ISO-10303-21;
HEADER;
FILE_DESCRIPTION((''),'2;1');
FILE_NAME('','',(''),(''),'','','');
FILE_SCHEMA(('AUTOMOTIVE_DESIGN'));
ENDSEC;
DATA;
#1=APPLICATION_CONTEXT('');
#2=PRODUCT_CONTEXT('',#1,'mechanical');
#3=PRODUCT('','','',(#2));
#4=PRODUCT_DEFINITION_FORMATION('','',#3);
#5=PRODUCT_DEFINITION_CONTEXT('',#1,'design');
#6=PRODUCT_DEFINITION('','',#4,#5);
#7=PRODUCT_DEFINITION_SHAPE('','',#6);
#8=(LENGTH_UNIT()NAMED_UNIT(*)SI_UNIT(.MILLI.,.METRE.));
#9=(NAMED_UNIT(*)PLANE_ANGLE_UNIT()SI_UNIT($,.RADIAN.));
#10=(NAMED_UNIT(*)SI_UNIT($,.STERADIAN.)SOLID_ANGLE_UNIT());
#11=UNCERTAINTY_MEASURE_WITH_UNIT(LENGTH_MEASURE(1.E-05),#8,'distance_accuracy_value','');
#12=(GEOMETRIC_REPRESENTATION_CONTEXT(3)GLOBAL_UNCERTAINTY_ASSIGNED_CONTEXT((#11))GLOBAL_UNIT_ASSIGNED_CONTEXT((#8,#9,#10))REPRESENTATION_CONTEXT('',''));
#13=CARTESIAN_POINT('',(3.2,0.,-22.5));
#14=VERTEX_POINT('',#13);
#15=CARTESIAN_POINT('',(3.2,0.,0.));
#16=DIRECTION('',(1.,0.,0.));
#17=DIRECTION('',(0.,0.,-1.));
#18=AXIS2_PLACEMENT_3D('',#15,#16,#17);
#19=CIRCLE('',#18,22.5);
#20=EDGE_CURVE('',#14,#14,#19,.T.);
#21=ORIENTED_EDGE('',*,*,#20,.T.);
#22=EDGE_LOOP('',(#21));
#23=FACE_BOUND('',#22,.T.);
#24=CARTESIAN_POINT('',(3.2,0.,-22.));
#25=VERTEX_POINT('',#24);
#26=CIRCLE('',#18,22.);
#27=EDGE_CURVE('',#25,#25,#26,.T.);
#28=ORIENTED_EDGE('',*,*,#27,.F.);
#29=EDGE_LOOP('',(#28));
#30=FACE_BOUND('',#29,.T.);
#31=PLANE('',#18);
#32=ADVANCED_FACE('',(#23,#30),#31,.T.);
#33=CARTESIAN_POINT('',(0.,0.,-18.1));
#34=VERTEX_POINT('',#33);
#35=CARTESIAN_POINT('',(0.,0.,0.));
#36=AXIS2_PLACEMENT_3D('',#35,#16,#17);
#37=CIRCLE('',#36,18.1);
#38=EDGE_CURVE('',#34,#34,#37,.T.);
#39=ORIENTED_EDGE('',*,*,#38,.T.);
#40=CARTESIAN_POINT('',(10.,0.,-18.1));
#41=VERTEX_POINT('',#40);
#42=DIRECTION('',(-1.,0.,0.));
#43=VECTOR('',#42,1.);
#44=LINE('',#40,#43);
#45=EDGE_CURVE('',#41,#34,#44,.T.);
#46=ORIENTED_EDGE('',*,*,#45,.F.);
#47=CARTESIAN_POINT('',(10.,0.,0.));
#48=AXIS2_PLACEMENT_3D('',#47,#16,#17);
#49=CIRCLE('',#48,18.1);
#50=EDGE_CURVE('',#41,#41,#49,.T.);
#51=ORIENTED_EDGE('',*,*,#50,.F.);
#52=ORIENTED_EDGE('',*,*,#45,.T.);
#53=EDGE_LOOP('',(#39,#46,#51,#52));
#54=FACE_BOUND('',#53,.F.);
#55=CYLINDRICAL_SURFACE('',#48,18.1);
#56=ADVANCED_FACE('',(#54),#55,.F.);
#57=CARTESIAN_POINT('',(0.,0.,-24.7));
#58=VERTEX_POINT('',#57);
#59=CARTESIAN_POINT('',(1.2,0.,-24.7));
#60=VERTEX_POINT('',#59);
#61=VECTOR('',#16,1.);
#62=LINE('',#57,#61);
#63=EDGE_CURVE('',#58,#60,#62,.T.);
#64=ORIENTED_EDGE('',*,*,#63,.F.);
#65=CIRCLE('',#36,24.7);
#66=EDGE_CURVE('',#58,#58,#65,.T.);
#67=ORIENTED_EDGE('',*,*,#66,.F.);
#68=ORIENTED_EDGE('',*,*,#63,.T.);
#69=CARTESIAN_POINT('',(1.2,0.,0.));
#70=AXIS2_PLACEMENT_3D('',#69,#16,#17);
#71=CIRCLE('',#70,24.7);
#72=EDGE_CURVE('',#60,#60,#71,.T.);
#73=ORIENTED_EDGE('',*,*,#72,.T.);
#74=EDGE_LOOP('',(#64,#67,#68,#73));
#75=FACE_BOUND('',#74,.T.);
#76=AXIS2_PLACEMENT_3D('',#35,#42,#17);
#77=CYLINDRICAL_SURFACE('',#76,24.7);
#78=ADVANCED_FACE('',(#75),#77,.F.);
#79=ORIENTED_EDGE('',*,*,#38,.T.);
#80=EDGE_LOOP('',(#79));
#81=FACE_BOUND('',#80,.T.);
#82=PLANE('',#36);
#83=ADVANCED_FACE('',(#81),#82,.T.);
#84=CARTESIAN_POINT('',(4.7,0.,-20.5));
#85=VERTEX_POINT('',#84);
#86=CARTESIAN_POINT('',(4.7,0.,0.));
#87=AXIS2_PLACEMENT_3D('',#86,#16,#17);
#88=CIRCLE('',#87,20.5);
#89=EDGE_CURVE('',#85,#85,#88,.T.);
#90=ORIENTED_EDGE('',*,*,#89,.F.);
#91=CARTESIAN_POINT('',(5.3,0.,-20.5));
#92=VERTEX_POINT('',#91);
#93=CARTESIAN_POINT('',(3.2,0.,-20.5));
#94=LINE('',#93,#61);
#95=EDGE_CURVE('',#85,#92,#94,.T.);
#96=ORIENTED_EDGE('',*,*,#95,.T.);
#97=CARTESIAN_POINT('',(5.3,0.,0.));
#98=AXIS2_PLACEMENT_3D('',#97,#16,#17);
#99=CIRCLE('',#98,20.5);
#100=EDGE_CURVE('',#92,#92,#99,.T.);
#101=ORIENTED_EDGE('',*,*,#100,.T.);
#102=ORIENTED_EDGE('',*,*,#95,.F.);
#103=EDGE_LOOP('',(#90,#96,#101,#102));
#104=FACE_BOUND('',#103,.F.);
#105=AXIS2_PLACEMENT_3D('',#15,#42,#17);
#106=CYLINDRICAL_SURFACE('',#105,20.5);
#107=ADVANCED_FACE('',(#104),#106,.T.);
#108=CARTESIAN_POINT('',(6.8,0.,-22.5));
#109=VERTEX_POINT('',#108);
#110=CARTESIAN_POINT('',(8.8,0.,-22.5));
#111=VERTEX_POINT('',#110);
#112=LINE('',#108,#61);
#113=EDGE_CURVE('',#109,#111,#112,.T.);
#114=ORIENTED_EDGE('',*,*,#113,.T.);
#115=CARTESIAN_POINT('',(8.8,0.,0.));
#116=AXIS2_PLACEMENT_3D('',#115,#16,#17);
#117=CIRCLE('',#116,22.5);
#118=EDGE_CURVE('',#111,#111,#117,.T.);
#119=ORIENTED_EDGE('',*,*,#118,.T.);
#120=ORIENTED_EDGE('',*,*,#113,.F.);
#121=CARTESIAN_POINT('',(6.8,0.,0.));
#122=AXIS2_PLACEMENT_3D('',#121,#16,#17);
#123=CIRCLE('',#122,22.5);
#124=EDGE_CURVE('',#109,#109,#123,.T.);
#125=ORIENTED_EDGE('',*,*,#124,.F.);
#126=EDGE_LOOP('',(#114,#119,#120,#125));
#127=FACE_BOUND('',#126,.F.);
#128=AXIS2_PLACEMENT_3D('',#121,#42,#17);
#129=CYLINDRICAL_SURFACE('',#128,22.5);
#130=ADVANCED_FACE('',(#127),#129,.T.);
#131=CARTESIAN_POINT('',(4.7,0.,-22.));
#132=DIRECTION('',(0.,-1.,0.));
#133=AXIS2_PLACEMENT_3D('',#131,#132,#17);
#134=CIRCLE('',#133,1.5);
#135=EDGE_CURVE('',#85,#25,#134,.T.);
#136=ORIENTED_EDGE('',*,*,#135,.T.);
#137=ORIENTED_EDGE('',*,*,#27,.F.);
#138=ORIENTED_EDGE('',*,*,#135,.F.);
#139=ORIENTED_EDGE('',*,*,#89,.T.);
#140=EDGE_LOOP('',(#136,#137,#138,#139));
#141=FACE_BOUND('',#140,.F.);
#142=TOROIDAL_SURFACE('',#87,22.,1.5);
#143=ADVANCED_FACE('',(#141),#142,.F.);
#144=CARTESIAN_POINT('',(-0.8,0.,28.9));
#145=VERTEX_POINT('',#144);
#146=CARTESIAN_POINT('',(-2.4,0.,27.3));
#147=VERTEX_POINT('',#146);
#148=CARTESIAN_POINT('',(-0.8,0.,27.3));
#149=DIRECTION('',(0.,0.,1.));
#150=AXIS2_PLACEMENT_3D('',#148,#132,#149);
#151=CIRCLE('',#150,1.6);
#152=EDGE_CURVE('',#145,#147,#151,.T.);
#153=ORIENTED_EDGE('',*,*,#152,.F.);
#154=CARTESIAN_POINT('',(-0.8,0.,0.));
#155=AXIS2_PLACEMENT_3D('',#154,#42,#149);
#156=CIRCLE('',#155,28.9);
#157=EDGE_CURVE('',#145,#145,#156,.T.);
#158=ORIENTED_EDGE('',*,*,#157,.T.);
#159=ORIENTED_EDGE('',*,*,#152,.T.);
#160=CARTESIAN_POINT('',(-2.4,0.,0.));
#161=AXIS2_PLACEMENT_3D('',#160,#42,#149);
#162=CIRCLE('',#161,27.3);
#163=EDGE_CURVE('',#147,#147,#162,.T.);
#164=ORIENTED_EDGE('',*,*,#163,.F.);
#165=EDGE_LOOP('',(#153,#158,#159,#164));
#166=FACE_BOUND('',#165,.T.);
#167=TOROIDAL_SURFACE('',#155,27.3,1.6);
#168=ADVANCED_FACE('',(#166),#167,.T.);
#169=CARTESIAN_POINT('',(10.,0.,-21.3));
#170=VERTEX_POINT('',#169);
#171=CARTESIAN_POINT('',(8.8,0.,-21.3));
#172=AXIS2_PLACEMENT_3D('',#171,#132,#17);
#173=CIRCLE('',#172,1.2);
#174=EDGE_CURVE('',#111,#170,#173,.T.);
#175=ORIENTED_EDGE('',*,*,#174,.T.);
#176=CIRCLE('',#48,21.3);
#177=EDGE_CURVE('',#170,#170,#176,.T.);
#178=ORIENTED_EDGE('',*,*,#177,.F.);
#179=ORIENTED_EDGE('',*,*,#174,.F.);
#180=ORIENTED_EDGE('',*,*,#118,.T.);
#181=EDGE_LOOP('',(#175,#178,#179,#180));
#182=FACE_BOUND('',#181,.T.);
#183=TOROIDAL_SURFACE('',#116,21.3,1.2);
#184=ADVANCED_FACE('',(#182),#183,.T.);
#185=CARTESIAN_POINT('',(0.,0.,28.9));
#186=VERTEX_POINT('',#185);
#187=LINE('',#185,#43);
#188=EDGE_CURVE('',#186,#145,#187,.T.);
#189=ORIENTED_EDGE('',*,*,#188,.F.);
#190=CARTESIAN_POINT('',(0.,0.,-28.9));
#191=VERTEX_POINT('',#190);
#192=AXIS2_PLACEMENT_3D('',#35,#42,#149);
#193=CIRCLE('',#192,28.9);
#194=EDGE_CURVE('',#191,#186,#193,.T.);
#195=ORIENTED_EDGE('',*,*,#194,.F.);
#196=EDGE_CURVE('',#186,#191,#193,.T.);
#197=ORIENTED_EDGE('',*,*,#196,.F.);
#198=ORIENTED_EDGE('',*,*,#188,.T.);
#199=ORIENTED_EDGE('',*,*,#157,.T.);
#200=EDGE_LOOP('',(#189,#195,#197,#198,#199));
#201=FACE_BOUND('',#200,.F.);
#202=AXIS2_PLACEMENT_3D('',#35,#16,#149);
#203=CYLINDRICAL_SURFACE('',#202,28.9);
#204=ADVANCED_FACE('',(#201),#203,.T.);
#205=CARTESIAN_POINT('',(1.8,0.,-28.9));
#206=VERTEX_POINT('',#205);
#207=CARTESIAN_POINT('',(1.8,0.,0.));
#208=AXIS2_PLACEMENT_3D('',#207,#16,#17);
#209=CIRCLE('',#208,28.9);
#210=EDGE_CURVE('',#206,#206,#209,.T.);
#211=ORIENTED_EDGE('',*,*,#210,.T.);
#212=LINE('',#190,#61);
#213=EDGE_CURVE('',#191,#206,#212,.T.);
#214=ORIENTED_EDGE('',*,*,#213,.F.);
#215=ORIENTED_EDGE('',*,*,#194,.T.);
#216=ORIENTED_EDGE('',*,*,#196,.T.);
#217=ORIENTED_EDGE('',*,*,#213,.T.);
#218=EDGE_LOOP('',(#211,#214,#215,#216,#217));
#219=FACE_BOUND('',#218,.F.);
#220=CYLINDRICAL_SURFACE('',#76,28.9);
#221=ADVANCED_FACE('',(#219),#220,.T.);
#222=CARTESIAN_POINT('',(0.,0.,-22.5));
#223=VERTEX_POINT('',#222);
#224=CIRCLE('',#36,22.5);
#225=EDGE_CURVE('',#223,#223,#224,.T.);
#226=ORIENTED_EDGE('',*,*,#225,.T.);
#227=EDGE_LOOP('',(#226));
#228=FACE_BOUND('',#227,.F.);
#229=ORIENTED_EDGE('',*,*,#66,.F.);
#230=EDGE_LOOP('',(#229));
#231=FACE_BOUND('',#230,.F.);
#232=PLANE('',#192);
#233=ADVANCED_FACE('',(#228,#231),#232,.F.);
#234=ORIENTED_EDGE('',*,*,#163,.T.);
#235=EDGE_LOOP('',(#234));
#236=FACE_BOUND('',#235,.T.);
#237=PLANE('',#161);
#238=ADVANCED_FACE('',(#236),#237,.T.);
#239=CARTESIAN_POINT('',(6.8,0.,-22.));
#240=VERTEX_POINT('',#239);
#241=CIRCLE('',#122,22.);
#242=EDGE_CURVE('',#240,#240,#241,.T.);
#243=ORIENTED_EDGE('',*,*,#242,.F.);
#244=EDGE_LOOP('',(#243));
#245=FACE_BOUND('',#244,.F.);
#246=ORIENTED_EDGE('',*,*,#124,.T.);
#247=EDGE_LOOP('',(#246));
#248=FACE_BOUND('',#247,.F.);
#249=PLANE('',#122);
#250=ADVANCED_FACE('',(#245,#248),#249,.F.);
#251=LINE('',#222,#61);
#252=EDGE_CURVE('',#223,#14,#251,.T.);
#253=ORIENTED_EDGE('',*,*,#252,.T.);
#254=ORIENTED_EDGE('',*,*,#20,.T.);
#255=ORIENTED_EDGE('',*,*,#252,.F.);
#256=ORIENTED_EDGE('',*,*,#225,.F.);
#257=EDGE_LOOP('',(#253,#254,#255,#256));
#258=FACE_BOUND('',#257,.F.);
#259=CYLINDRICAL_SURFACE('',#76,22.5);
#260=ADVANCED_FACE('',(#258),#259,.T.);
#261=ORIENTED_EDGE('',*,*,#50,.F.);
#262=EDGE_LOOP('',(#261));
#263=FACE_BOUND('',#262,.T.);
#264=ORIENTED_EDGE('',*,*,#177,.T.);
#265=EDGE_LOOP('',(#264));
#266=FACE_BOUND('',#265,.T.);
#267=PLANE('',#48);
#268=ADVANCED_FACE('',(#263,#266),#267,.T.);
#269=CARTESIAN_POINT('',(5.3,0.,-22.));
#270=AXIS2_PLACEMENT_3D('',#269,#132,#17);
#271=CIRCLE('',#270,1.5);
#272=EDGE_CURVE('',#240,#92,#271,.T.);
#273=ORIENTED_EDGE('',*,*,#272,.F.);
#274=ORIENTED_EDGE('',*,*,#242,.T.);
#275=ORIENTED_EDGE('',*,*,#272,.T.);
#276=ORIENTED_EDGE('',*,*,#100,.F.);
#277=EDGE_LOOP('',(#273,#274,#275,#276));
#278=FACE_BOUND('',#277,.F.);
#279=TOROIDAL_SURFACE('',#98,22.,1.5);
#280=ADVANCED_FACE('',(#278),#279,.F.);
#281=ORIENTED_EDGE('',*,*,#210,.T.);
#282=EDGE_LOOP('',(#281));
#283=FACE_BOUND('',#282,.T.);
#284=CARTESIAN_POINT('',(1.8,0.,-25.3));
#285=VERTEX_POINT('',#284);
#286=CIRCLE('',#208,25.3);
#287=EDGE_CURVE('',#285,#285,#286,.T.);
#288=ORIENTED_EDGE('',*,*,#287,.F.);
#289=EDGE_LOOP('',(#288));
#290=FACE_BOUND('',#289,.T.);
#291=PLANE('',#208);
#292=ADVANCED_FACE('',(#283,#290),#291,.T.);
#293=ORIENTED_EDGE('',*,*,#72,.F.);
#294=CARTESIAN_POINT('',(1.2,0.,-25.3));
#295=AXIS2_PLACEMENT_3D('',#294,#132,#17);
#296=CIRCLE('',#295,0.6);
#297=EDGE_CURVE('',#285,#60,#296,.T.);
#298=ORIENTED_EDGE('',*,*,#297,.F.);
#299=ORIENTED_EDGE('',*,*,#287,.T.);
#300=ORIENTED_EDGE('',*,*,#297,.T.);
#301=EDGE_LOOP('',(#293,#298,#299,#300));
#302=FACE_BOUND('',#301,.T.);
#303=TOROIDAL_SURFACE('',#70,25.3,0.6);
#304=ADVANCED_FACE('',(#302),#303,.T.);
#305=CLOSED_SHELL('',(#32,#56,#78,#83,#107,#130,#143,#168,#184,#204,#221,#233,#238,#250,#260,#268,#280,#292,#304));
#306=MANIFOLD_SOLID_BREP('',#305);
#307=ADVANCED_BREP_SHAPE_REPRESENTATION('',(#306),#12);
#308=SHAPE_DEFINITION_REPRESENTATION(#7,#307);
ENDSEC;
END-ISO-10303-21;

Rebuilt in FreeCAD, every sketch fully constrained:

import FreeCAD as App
import Part
import Sketcher

V = App.Vector
Q = App.Units.Quantity


def edges_at(feature, points):
    """Names of the edges that pass closest to the given points."""
    edges = feature.Shape.Edges
    near = lambda p: min(range(len(edges)), key=lambda i: edges[i].distToShape(Part.Vertex(*p))[0])
    return sorted({f"Edge{near(p) + 1}" for p in points})

doc = App.newDocument("Part")
body = doc.addObject("PartDesign::Body", "Body")

# Sketch on YZ plane
sketch1 = doc.addObject("Sketcher::SketchObject", "Sketch")
body.addObject(sketch1)
sketch1.AttachmentSupport = (doc.YZ_Plane, [""])
sketch1.MapMode = "FlatFace"
sketch1.addGeometry(Part.Circle(V(0, 0, 0), V(0, 0, 1), 22.5), False)
sketch1.addConstraint(Sketcher.Constraint("Coincident", 0, 3, -1, 1))
sketch1.addConstraint(Sketcher.Constraint("Diameter", 0, Q("45 mm")))
pad1 = doc.addObject("PartDesign::Pad", "Pad")
body.addObject(pad1)
pad1.Profile = sketch1
pad1.Length = 3.2

# Sketch on YZ plane
sketch2 = doc.addObject("Sketcher::SketchObject", "Sketch001")
body.addObject(sketch2)
sketch2.AttachmentSupport = (doc.YZ_Plane, [""])
sketch2.MapMode = "FlatFace"
sketch2.AttachmentOffset = App.Placement(V(0, 0, 3.2), App.Rotation())
sketch2.addGeometry(Part.Circle(V(0, 0, 0), V(0, 0, 1), 20.5), False)
sketch2.addConstraint(Sketcher.Constraint("Coincident", 0, 3, -1, 1))
sketch2.addConstraint(Sketcher.Constraint("Diameter", 0, Q("41 mm")))
pad2 = doc.addObject("PartDesign::Pad", "Pad001")
body.addObject(pad2)
pad2.Profile = sketch2
pad2.Length = 3.6

# Sketch on YZ plane
sketch3 = doc.addObject("Sketcher::SketchObject", "Sketch002")
body.addObject(sketch3)
sketch3.AttachmentSupport = (doc.YZ_Plane, [""])
sketch3.MapMode = "FlatFace"
sketch3.AttachmentOffset = App.Placement(V(0, 0, 6.8), App.Rotation())
sketch3.addGeometry(Part.Circle(V(0, 0, 0), V(0, 0, 1), 22.5), False)
sketch3.addConstraint(Sketcher.Constraint("Coincident", 0, 3, -1, 1))
sketch3.addConstraint(Sketcher.Constraint("Diameter", 0, Q("45 mm")))
pad3 = doc.addObject("PartDesign::Pad", "Pad002")
body.addObject(pad3)
pad3.Profile = sketch3
pad3.Length = 3.2
doc.recompute()

fillet = doc.addObject("PartDesign::Fillet", "Fillet")
body.addObject(fillet)
fillet.Base = (pad3, edges_at(pad3, [(3.2, 7.413, 19.113), (6.8, -7.413, 19.113)]))
fillet.Radius = 1.5

# Sketch on YZ plane
sketch4 = doc.addObject("Sketcher::SketchObject", "Sketch003")
body.addObject(sketch4)
sketch4.AttachmentSupport = (doc.YZ_Plane, [""])
sketch4.MapMode = "FlatFace"
sketch4.addGeometry(Part.Circle(V(0, 0, 0), V(0, 0, 1), 28.9), False)
sketch4.addConstraint(Sketcher.Constraint("Coincident", 0, 3, -1, 1))
sketch4.addConstraint(Sketcher.Constraint("Diameter", 0, Q("57.8 mm")))
pad4 = doc.addObject("PartDesign::Pad", "Pad003")
body.addObject(pad4)
pad4.Profile = sketch4
pad4.Length = 2.4
pad4.Reversed = True

# Sketch on YZ plane
sketch5 = doc.addObject("Sketcher::SketchObject", "Sketch004")
body.addObject(sketch5)
sketch5.AttachmentSupport = (doc.YZ_Plane, [""])
sketch5.MapMode = "FlatFace"
sketch5.addGeometry(Part.Circle(V(0, 0, 0), V(0, 0, 1), 28.9), False)
sketch5.addGeometry(Part.Circle(V(0, 0, 0), V(0, 0, 1), 24.7), False)
sketch5.addConstraint(Sketcher.Constraint("Coincident", 0, 3, -1, 1))
sketch5.addConstraint(Sketcher.Constraint("Coincident", 1, 3, -1, 1))
sketch5.addConstraint(Sketcher.Constraint("Diameter", 1, Q("49.4 mm")))
sketch5.addConstraint(Sketcher.Constraint("Diameter", 0, Q("57.8 mm")))
pad5 = doc.addObject("PartDesign::Pad", "Pad004")
body.addObject(pad5)
pad5.Profile = sketch5
pad5.Length = 1.8

# Sketch on YZ plane
sketch6 = doc.addObject("Sketcher::SketchObject", "Sketch005")
body.addObject(sketch6)
sketch6.AttachmentSupport = (doc.YZ_Plane, [""])
sketch6.MapMode = "FlatFace"
sketch6.AttachmentOffset = App.Placement(V(0, 0, 10), App.Rotation())
sketch6.addGeometry(Part.Circle(V(0, 0, 0), V(0, 0, 1), 18.1), False)
sketch6.addConstraint(Sketcher.Constraint("Coincident", 0, 3, -1, 1))
sketch6.addConstraint(Sketcher.Constraint("Diameter", 0, Q("36.2 mm")))
pocket1 = doc.addObject("PartDesign::Pocket", "Pocket")
body.addObject(pocket1)
pocket1.Profile = sketch6
pocket1.Length = 10
doc.recompute()

fillet2 = doc.addObject("PartDesign::Fillet", "Fillet001")
body.addObject(fillet2)
fillet2.Base = (pocket1, edges_at(pocket1, [(10, -8.136, 20.977)]))
fillet2.Radius = 1.2
doc.recompute()

fillet3 = doc.addObject("PartDesign::Fillet", "Fillet002")
body.addObject(fillet3)
fillet3.Base = (fillet2, edges_at(fillet2, [(-2.4, -10.451, -26.944)]))
fillet3.Radius = 1.6
doc.recompute()

fillet4 = doc.addObject("PartDesign::Fillet", "Fillet003")
body.addObject(fillet4)
fillet4.Base = (fillet3, edges_at(fillet3, [(1.8, 8.932, 23.029)]))
fillet4.Radius = 0.6

doc.recompute()
